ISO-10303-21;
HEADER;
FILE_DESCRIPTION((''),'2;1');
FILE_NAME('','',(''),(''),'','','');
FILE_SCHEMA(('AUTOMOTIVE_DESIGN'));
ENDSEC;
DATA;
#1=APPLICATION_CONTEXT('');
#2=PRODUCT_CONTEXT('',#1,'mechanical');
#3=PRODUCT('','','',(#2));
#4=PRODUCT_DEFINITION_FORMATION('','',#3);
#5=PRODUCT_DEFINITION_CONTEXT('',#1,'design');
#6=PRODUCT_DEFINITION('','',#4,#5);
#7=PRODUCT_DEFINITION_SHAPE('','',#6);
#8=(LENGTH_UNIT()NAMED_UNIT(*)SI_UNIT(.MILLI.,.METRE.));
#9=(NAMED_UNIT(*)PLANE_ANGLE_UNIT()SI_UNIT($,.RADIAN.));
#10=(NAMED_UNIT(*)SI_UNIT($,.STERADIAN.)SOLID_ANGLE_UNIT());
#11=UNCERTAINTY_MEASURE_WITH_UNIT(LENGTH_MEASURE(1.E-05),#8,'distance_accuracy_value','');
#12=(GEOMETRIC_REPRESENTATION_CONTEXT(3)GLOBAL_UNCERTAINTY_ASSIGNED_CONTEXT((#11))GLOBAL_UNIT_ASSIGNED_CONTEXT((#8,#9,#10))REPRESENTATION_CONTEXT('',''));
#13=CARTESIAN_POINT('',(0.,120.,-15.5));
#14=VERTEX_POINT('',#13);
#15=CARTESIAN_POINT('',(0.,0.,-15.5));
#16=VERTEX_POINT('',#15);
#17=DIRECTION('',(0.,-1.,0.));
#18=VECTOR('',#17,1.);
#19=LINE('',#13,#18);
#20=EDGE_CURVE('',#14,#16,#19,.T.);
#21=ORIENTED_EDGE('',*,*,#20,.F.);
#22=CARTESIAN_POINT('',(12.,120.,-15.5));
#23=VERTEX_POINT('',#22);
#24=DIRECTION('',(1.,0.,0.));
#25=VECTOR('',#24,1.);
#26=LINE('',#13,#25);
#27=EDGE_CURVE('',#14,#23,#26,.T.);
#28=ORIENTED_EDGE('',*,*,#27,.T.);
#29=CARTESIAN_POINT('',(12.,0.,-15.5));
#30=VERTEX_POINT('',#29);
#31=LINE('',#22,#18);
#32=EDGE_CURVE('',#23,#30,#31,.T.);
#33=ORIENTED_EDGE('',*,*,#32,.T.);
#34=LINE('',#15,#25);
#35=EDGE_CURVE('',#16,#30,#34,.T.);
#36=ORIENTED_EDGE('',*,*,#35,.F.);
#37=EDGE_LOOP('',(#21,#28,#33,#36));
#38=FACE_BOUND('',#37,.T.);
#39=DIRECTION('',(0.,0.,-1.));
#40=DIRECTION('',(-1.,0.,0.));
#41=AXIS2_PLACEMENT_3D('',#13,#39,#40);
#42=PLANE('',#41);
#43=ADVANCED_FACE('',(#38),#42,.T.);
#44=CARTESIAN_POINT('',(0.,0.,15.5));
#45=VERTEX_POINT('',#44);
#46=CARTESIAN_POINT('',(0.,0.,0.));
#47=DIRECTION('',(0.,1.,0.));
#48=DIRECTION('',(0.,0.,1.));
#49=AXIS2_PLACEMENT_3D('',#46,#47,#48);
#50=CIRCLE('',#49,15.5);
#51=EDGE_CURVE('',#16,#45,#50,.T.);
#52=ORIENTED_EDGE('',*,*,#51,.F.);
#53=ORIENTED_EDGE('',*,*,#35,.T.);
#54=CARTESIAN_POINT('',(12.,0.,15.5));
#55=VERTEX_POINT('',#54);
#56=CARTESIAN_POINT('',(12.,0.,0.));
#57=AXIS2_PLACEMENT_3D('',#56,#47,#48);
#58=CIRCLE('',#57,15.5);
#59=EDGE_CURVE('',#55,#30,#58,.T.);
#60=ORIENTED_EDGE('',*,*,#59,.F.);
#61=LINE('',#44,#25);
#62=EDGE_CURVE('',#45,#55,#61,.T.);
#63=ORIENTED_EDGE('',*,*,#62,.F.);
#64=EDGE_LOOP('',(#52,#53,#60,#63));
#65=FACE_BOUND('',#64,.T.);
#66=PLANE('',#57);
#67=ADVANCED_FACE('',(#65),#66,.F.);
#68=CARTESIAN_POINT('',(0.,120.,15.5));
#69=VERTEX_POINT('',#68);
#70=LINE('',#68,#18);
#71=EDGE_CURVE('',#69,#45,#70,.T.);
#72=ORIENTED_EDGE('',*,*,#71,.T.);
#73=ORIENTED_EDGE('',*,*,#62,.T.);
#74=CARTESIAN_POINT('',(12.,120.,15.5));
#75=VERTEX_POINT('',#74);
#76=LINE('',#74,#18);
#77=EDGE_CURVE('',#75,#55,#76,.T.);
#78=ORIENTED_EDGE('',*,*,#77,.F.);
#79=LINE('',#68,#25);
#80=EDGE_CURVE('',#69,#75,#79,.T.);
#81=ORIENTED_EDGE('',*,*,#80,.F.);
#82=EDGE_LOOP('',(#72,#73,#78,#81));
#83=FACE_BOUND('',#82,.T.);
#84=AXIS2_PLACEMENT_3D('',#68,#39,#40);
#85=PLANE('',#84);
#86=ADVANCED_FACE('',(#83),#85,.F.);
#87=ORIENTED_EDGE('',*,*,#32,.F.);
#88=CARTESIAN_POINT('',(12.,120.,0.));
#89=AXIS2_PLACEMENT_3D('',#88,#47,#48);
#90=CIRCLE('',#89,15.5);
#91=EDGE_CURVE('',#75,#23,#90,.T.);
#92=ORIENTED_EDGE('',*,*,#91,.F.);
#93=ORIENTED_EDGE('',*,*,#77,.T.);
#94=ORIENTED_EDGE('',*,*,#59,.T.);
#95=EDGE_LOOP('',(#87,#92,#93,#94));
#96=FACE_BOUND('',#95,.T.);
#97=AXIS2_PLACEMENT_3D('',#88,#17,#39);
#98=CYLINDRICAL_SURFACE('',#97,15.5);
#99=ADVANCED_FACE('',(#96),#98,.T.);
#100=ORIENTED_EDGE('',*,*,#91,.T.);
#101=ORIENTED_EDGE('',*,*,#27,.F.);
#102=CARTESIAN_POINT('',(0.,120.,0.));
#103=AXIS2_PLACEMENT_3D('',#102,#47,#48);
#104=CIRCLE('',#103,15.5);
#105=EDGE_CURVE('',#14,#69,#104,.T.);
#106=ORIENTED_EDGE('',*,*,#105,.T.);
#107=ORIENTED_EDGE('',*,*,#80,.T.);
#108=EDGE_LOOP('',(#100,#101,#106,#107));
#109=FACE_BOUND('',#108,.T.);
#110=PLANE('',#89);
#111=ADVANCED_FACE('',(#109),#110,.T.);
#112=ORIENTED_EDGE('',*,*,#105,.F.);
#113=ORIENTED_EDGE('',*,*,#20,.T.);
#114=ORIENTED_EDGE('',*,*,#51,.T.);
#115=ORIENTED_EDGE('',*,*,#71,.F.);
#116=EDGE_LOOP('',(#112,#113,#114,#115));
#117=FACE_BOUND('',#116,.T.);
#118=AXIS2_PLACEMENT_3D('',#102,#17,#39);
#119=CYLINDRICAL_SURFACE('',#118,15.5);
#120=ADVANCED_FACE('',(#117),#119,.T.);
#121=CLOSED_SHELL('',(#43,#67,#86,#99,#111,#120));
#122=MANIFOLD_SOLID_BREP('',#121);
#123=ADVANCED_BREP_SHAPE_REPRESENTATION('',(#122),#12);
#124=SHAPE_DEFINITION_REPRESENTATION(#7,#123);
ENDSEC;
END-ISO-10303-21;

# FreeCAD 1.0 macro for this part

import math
import FreeCAD as App
import Part
import Sketcher
from FreeCAD import Vector
Q = App.Units.Quantity

doc = App.newDocument("Part")
body = doc.addObject("PartDesign::Body", "Body")

# Sketch on XZ plane
sketch1 = body.newObject("Sketcher::SketchObject", "Sketch")
sketch1.AttachmentSupport = (doc.getObject("XZ_Plane"), [""])
sketch1.MapMode = "FlatFace"
sketch1.addGeometry([
    Part.LineSegment(Vector(12, -16, 0), Vector(0, -16, 0)),
    Part.ArcOfCircle(Part.Circle(Vector(0, 0, 0), Vector(0, 0, 1), 16), math.radians(90), math.radians(270)),
    Part.LineSegment(Vector(0, 16, 0), Vector(12, 16, 0)),
    Part.ArcOfCircle(Part.Circle(Vector(12, 0, 0), Vector(0, 0, 1), 16), math.radians(-90), math.radians(90)),
], False)
sketch1.addConstraint([
    Sketcher.Constraint("Tangent", 0, 2, 1, 2),
    Sketcher.Constraint("Tangent", 1, 1, 2, 1),
    Sketcher.Constraint("Tangent", 2, 2, 3, 2),
    Sketcher.Constraint("Tangent", 3, 1, 0, 1),
    Sketcher.Constraint("Horizontal", 0),
    Sketcher.Constraint("Horizontal", 2),
    Sketcher.Constraint("Coincident", 1, 3, -1, 1),
    Sketcher.Constraint("Radius", 1, Q("15.5 mm")),
    Sketcher.Constraint("DistanceX", 0, 2, 0, 1, Q("12 mm")),
])
pad1 = body.newObject("PartDesign::Pad", "Pad")
pad1.Profile = sketch1
pad1.Length = 120
pad1.Reversed = True

doc.recompute()
